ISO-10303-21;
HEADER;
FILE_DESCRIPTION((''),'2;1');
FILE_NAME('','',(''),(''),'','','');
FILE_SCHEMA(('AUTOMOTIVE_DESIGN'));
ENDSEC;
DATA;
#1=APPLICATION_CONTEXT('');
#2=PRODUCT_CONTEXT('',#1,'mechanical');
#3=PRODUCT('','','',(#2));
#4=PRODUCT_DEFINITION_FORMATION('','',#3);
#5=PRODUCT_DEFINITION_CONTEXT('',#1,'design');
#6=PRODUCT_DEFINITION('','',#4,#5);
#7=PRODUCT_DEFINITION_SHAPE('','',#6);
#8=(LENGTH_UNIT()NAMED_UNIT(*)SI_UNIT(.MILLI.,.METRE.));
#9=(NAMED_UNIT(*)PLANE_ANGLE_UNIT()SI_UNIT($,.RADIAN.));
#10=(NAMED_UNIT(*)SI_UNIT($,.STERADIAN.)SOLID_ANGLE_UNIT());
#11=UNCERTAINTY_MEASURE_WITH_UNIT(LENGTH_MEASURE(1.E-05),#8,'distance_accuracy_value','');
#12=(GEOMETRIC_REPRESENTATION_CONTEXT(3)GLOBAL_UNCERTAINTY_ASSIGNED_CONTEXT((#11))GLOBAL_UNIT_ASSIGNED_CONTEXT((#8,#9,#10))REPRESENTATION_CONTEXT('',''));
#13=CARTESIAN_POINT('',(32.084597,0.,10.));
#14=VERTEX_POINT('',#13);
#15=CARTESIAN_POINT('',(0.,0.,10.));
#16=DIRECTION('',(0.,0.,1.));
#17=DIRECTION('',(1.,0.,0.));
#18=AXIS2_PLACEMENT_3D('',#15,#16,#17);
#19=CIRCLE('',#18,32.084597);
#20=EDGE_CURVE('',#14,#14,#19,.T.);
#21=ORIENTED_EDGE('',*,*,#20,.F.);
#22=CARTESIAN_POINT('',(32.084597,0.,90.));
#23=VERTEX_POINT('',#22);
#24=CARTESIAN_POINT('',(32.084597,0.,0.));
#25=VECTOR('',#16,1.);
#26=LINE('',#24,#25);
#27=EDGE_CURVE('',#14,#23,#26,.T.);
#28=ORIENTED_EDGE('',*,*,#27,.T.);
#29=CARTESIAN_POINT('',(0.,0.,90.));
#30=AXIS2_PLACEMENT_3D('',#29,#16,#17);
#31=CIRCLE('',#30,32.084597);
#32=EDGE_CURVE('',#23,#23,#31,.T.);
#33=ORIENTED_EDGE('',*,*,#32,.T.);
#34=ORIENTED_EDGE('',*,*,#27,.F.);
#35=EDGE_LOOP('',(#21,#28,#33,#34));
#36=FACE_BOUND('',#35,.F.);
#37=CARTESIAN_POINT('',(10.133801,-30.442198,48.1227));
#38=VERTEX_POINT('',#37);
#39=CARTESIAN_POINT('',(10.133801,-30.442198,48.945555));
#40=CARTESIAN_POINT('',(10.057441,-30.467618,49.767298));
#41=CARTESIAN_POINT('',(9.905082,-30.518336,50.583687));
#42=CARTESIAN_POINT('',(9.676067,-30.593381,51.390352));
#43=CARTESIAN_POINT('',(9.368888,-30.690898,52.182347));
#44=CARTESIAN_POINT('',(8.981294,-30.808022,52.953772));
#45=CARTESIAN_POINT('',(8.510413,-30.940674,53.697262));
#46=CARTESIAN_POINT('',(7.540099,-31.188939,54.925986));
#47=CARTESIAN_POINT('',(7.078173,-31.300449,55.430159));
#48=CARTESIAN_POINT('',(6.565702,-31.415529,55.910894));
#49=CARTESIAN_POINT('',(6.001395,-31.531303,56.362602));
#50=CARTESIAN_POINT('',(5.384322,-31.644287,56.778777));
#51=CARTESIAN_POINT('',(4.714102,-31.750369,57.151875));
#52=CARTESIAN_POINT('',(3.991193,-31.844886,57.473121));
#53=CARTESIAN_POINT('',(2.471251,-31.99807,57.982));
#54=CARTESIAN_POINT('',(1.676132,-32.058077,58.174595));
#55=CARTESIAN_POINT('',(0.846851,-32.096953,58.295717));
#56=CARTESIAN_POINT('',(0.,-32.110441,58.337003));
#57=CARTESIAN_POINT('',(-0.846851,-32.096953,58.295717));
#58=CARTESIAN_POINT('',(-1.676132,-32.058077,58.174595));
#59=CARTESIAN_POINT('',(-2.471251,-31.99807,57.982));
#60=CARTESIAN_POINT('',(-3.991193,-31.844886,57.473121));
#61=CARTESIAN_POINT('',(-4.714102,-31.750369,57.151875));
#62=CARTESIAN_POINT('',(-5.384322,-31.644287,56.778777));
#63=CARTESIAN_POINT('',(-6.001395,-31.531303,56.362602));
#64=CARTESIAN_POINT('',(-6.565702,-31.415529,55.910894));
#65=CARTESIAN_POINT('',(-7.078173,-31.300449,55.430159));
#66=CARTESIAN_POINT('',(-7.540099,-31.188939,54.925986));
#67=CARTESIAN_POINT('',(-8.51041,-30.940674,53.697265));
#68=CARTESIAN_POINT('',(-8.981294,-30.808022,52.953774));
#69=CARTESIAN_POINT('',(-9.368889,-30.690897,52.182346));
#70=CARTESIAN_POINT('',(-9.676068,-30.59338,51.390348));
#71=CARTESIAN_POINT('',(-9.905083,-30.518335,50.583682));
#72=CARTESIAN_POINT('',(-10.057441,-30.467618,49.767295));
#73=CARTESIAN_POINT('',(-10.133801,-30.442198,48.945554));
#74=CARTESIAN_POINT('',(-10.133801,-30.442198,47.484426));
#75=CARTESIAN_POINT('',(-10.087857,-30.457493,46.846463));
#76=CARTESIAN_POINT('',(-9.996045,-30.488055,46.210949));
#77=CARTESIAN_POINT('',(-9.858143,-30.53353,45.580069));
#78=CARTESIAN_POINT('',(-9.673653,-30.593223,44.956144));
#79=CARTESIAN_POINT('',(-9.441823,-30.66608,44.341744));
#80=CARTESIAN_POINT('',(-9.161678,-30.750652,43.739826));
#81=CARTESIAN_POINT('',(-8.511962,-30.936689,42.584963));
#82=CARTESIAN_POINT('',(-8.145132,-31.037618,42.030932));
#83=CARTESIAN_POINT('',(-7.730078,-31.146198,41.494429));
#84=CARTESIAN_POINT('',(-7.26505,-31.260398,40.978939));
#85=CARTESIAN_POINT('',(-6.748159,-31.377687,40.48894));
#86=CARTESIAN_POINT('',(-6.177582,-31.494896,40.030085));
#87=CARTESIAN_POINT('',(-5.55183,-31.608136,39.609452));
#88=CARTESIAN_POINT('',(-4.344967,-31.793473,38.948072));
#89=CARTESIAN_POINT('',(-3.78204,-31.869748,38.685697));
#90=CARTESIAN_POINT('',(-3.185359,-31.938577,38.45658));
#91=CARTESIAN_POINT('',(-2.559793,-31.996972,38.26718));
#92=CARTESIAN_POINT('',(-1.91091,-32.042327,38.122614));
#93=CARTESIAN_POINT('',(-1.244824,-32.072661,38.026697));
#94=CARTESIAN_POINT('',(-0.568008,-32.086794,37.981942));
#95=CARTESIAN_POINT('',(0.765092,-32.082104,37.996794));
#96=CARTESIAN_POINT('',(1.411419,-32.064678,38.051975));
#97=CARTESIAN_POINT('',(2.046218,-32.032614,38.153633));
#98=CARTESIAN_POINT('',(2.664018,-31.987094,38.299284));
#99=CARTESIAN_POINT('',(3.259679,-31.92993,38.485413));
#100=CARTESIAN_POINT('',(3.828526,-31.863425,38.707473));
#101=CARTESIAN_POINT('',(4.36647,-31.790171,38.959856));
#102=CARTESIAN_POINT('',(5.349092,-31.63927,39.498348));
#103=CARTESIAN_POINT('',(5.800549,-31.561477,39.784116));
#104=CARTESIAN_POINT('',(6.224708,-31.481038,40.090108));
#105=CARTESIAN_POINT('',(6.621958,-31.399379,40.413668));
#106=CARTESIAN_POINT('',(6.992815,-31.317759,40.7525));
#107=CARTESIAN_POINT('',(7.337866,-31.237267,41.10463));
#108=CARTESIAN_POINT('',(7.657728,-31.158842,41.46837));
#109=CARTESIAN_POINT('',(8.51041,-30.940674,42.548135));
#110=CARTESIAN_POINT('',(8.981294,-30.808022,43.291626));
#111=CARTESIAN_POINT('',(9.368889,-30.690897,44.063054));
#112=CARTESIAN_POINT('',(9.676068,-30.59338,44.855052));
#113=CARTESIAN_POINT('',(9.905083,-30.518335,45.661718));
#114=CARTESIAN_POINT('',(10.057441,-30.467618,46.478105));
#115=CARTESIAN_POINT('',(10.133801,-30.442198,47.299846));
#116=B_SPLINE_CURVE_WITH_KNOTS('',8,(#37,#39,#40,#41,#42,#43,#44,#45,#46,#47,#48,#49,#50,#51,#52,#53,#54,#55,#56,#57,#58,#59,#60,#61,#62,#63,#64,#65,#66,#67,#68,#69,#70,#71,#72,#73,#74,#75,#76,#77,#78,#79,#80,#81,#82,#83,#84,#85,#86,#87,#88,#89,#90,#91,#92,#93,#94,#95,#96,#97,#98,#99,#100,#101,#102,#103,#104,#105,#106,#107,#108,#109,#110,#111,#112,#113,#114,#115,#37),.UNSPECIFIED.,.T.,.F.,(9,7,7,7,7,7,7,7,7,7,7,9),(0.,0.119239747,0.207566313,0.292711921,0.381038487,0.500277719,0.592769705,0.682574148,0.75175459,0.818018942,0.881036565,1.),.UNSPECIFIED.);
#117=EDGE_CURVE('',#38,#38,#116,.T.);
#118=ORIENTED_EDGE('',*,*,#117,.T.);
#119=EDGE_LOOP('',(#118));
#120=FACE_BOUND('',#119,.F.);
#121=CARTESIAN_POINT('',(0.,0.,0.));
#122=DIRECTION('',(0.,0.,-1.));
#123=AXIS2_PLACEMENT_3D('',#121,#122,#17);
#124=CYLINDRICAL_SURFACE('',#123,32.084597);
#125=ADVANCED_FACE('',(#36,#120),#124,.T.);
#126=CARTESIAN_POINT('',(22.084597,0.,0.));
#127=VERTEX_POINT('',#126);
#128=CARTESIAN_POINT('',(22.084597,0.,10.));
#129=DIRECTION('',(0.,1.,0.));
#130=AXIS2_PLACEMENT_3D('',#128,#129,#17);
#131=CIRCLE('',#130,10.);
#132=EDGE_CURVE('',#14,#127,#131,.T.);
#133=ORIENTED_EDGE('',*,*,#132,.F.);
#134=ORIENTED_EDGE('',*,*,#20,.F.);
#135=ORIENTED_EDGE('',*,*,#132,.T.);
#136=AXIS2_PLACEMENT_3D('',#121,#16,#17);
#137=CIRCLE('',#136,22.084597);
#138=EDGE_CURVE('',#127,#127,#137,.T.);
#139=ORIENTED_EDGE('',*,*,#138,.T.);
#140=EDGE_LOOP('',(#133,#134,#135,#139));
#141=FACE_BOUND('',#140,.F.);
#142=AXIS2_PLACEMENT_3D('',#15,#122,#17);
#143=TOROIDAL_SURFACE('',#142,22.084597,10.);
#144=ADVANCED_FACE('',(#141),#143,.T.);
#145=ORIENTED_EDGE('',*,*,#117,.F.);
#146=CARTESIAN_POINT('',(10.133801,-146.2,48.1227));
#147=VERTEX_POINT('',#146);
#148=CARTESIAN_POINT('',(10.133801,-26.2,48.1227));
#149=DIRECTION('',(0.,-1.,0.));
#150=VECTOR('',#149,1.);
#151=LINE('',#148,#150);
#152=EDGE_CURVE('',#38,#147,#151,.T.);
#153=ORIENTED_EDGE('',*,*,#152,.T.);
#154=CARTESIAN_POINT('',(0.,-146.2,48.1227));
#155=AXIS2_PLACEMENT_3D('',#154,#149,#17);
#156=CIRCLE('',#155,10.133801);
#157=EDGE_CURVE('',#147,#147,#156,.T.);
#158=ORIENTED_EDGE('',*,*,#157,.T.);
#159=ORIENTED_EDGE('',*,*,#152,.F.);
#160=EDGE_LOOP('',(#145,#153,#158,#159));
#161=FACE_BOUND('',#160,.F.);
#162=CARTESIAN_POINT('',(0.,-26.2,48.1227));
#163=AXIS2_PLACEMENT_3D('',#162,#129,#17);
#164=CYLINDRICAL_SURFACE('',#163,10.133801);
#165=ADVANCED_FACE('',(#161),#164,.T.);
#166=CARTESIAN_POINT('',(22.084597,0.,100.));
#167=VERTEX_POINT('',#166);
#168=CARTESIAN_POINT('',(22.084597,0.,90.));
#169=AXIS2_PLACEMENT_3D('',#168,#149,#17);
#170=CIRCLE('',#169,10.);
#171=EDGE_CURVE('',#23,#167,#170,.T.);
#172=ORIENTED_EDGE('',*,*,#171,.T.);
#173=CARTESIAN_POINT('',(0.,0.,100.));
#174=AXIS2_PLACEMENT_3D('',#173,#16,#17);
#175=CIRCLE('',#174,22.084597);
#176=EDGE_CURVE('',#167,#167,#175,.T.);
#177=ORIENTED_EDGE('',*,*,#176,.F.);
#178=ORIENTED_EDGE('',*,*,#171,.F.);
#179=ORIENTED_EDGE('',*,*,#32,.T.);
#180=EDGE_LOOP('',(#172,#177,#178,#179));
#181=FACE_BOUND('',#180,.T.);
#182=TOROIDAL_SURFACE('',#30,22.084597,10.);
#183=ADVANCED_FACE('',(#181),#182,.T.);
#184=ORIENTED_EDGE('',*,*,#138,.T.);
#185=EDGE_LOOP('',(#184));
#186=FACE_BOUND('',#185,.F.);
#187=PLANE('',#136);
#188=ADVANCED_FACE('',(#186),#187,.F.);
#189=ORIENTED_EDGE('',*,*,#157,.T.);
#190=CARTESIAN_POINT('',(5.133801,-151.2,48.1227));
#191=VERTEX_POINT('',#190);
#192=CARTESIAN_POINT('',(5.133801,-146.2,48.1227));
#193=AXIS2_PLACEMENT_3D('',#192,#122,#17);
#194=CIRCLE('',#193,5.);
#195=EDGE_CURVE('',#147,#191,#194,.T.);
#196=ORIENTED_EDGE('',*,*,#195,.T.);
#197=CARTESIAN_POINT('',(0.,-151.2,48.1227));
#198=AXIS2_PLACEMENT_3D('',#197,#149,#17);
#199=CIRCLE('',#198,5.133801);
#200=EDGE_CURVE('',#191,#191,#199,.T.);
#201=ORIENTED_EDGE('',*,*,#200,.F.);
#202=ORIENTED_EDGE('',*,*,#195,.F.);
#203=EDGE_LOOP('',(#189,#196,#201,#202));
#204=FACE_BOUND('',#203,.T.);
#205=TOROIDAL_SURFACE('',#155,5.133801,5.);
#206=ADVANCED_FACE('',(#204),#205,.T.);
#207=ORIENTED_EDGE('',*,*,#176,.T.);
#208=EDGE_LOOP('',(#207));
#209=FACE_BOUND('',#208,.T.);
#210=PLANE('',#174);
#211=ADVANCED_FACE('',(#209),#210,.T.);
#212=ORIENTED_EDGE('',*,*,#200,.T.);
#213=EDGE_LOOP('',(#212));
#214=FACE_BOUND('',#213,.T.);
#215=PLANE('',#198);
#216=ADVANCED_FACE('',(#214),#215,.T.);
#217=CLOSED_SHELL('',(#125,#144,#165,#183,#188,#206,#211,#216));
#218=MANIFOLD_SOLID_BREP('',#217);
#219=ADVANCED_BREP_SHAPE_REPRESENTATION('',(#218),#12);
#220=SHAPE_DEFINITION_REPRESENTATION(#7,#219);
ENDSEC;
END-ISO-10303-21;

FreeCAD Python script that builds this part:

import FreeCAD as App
import Part
import Sketcher

V = App.Vector
Q = App.Units.Quantity


def edges_at(feature, points):
    """Names of the edges that pass closest to the given points."""
    edges = feature.Shape.Edges
    near = lambda p: min(range(len(edges)), key=lambda i: edges[i].distToShape(Part.Vertex(*p))[0])
    return sorted({f"Edge{near(p) + 1}" for p in points})

doc = App.newDocument("Part")
params = doc.addObject("Spreadsheet::Sheet", "Params")
for row, (alias, value) in enumerate([
    ("pad1_length", "100 mm"),
    ("fillet_radius", "10 mm"),
    ("pad2_length", "125 mm"),
    ("fillet2_radius", "5 mm"),
], start=1):
    params.set(f"A{row}", alias)
    params.set(f"B{row}", "=" + value)
    params.setAlias(f"B{row}", alias)

body = doc.addObject("PartDesign::Body", "Body")

sketch1 = body.newObject("Sketcher::SketchObject", "Sketch")
sketch1.AttachmentSupport = (doc.getObject("XY_Plane"), [""])
sketch1.MapMode = "FlatFace"
sketch1.addGeometry(Part.Circle(V(0, 0, 0), V(0, 0, 1), 32), False)
sketch1.addConstraint(Sketcher.Constraint("Coincident", 0, 3, -1, 1))
sketch1.addConstraint(Sketcher.Constraint("Diameter", 0, Q("64.169194 mm")))
pad1 = body.newObject("PartDesign::Pad", "Pad")
pad1.Profile = sketch1
pad1.setExpression("Length", "Params.pad1_length")
doc.recompute()

fillet = body.newObject("PartDesign::Fillet", "Fillet")
fillet.Base = (pad1, edges_at(pad1, [(-32.085, 0, 100), (-32.085, 0, 0)]))
fillet.setExpression("Radius", "Params.fillet_radius")

sketch2 = body.newObject("Sketcher::SketchObject", "Sketch001")
sketch2.AttachmentSupport = (doc.getObject("XZ_Plane"), [""])
sketch2.MapMode = "FlatFace"
sketch2.AttachmentOffset = App.Placement(V(0, 0, 26.2), App.Rotation())
sketch2.addGeometry(Part.Circle(V(0, 48, 0), V(0, 0, 1), 10), False)
sketch2.addConstraint(Sketcher.Constraint("PointOnObject", 0, 3, -2))
sketch2.addConstraint(Sketcher.Constraint("Diameter", 0, Q("20.267602 mm")))
sketch2.addConstraint(Sketcher.Constraint("DistanceY", -1, 1, 0, 3, Q("48.1227 mm")))
pad2 = body.newObject("PartDesign::Pad", "Pad001")
pad2.Profile = sketch2
pad2.setExpression("Length", "Params.pad2_length")
doc.recompute()

fillet2 = body.newObject("PartDesign::Fillet", "Fillet001")
fillet2.Base = (pad2, edges_at(pad2, [(-10.134, -151.2, 48.123)]))
fillet2.setExpression("Radius", "Params.fillet2_radius")

doc.recompute()
